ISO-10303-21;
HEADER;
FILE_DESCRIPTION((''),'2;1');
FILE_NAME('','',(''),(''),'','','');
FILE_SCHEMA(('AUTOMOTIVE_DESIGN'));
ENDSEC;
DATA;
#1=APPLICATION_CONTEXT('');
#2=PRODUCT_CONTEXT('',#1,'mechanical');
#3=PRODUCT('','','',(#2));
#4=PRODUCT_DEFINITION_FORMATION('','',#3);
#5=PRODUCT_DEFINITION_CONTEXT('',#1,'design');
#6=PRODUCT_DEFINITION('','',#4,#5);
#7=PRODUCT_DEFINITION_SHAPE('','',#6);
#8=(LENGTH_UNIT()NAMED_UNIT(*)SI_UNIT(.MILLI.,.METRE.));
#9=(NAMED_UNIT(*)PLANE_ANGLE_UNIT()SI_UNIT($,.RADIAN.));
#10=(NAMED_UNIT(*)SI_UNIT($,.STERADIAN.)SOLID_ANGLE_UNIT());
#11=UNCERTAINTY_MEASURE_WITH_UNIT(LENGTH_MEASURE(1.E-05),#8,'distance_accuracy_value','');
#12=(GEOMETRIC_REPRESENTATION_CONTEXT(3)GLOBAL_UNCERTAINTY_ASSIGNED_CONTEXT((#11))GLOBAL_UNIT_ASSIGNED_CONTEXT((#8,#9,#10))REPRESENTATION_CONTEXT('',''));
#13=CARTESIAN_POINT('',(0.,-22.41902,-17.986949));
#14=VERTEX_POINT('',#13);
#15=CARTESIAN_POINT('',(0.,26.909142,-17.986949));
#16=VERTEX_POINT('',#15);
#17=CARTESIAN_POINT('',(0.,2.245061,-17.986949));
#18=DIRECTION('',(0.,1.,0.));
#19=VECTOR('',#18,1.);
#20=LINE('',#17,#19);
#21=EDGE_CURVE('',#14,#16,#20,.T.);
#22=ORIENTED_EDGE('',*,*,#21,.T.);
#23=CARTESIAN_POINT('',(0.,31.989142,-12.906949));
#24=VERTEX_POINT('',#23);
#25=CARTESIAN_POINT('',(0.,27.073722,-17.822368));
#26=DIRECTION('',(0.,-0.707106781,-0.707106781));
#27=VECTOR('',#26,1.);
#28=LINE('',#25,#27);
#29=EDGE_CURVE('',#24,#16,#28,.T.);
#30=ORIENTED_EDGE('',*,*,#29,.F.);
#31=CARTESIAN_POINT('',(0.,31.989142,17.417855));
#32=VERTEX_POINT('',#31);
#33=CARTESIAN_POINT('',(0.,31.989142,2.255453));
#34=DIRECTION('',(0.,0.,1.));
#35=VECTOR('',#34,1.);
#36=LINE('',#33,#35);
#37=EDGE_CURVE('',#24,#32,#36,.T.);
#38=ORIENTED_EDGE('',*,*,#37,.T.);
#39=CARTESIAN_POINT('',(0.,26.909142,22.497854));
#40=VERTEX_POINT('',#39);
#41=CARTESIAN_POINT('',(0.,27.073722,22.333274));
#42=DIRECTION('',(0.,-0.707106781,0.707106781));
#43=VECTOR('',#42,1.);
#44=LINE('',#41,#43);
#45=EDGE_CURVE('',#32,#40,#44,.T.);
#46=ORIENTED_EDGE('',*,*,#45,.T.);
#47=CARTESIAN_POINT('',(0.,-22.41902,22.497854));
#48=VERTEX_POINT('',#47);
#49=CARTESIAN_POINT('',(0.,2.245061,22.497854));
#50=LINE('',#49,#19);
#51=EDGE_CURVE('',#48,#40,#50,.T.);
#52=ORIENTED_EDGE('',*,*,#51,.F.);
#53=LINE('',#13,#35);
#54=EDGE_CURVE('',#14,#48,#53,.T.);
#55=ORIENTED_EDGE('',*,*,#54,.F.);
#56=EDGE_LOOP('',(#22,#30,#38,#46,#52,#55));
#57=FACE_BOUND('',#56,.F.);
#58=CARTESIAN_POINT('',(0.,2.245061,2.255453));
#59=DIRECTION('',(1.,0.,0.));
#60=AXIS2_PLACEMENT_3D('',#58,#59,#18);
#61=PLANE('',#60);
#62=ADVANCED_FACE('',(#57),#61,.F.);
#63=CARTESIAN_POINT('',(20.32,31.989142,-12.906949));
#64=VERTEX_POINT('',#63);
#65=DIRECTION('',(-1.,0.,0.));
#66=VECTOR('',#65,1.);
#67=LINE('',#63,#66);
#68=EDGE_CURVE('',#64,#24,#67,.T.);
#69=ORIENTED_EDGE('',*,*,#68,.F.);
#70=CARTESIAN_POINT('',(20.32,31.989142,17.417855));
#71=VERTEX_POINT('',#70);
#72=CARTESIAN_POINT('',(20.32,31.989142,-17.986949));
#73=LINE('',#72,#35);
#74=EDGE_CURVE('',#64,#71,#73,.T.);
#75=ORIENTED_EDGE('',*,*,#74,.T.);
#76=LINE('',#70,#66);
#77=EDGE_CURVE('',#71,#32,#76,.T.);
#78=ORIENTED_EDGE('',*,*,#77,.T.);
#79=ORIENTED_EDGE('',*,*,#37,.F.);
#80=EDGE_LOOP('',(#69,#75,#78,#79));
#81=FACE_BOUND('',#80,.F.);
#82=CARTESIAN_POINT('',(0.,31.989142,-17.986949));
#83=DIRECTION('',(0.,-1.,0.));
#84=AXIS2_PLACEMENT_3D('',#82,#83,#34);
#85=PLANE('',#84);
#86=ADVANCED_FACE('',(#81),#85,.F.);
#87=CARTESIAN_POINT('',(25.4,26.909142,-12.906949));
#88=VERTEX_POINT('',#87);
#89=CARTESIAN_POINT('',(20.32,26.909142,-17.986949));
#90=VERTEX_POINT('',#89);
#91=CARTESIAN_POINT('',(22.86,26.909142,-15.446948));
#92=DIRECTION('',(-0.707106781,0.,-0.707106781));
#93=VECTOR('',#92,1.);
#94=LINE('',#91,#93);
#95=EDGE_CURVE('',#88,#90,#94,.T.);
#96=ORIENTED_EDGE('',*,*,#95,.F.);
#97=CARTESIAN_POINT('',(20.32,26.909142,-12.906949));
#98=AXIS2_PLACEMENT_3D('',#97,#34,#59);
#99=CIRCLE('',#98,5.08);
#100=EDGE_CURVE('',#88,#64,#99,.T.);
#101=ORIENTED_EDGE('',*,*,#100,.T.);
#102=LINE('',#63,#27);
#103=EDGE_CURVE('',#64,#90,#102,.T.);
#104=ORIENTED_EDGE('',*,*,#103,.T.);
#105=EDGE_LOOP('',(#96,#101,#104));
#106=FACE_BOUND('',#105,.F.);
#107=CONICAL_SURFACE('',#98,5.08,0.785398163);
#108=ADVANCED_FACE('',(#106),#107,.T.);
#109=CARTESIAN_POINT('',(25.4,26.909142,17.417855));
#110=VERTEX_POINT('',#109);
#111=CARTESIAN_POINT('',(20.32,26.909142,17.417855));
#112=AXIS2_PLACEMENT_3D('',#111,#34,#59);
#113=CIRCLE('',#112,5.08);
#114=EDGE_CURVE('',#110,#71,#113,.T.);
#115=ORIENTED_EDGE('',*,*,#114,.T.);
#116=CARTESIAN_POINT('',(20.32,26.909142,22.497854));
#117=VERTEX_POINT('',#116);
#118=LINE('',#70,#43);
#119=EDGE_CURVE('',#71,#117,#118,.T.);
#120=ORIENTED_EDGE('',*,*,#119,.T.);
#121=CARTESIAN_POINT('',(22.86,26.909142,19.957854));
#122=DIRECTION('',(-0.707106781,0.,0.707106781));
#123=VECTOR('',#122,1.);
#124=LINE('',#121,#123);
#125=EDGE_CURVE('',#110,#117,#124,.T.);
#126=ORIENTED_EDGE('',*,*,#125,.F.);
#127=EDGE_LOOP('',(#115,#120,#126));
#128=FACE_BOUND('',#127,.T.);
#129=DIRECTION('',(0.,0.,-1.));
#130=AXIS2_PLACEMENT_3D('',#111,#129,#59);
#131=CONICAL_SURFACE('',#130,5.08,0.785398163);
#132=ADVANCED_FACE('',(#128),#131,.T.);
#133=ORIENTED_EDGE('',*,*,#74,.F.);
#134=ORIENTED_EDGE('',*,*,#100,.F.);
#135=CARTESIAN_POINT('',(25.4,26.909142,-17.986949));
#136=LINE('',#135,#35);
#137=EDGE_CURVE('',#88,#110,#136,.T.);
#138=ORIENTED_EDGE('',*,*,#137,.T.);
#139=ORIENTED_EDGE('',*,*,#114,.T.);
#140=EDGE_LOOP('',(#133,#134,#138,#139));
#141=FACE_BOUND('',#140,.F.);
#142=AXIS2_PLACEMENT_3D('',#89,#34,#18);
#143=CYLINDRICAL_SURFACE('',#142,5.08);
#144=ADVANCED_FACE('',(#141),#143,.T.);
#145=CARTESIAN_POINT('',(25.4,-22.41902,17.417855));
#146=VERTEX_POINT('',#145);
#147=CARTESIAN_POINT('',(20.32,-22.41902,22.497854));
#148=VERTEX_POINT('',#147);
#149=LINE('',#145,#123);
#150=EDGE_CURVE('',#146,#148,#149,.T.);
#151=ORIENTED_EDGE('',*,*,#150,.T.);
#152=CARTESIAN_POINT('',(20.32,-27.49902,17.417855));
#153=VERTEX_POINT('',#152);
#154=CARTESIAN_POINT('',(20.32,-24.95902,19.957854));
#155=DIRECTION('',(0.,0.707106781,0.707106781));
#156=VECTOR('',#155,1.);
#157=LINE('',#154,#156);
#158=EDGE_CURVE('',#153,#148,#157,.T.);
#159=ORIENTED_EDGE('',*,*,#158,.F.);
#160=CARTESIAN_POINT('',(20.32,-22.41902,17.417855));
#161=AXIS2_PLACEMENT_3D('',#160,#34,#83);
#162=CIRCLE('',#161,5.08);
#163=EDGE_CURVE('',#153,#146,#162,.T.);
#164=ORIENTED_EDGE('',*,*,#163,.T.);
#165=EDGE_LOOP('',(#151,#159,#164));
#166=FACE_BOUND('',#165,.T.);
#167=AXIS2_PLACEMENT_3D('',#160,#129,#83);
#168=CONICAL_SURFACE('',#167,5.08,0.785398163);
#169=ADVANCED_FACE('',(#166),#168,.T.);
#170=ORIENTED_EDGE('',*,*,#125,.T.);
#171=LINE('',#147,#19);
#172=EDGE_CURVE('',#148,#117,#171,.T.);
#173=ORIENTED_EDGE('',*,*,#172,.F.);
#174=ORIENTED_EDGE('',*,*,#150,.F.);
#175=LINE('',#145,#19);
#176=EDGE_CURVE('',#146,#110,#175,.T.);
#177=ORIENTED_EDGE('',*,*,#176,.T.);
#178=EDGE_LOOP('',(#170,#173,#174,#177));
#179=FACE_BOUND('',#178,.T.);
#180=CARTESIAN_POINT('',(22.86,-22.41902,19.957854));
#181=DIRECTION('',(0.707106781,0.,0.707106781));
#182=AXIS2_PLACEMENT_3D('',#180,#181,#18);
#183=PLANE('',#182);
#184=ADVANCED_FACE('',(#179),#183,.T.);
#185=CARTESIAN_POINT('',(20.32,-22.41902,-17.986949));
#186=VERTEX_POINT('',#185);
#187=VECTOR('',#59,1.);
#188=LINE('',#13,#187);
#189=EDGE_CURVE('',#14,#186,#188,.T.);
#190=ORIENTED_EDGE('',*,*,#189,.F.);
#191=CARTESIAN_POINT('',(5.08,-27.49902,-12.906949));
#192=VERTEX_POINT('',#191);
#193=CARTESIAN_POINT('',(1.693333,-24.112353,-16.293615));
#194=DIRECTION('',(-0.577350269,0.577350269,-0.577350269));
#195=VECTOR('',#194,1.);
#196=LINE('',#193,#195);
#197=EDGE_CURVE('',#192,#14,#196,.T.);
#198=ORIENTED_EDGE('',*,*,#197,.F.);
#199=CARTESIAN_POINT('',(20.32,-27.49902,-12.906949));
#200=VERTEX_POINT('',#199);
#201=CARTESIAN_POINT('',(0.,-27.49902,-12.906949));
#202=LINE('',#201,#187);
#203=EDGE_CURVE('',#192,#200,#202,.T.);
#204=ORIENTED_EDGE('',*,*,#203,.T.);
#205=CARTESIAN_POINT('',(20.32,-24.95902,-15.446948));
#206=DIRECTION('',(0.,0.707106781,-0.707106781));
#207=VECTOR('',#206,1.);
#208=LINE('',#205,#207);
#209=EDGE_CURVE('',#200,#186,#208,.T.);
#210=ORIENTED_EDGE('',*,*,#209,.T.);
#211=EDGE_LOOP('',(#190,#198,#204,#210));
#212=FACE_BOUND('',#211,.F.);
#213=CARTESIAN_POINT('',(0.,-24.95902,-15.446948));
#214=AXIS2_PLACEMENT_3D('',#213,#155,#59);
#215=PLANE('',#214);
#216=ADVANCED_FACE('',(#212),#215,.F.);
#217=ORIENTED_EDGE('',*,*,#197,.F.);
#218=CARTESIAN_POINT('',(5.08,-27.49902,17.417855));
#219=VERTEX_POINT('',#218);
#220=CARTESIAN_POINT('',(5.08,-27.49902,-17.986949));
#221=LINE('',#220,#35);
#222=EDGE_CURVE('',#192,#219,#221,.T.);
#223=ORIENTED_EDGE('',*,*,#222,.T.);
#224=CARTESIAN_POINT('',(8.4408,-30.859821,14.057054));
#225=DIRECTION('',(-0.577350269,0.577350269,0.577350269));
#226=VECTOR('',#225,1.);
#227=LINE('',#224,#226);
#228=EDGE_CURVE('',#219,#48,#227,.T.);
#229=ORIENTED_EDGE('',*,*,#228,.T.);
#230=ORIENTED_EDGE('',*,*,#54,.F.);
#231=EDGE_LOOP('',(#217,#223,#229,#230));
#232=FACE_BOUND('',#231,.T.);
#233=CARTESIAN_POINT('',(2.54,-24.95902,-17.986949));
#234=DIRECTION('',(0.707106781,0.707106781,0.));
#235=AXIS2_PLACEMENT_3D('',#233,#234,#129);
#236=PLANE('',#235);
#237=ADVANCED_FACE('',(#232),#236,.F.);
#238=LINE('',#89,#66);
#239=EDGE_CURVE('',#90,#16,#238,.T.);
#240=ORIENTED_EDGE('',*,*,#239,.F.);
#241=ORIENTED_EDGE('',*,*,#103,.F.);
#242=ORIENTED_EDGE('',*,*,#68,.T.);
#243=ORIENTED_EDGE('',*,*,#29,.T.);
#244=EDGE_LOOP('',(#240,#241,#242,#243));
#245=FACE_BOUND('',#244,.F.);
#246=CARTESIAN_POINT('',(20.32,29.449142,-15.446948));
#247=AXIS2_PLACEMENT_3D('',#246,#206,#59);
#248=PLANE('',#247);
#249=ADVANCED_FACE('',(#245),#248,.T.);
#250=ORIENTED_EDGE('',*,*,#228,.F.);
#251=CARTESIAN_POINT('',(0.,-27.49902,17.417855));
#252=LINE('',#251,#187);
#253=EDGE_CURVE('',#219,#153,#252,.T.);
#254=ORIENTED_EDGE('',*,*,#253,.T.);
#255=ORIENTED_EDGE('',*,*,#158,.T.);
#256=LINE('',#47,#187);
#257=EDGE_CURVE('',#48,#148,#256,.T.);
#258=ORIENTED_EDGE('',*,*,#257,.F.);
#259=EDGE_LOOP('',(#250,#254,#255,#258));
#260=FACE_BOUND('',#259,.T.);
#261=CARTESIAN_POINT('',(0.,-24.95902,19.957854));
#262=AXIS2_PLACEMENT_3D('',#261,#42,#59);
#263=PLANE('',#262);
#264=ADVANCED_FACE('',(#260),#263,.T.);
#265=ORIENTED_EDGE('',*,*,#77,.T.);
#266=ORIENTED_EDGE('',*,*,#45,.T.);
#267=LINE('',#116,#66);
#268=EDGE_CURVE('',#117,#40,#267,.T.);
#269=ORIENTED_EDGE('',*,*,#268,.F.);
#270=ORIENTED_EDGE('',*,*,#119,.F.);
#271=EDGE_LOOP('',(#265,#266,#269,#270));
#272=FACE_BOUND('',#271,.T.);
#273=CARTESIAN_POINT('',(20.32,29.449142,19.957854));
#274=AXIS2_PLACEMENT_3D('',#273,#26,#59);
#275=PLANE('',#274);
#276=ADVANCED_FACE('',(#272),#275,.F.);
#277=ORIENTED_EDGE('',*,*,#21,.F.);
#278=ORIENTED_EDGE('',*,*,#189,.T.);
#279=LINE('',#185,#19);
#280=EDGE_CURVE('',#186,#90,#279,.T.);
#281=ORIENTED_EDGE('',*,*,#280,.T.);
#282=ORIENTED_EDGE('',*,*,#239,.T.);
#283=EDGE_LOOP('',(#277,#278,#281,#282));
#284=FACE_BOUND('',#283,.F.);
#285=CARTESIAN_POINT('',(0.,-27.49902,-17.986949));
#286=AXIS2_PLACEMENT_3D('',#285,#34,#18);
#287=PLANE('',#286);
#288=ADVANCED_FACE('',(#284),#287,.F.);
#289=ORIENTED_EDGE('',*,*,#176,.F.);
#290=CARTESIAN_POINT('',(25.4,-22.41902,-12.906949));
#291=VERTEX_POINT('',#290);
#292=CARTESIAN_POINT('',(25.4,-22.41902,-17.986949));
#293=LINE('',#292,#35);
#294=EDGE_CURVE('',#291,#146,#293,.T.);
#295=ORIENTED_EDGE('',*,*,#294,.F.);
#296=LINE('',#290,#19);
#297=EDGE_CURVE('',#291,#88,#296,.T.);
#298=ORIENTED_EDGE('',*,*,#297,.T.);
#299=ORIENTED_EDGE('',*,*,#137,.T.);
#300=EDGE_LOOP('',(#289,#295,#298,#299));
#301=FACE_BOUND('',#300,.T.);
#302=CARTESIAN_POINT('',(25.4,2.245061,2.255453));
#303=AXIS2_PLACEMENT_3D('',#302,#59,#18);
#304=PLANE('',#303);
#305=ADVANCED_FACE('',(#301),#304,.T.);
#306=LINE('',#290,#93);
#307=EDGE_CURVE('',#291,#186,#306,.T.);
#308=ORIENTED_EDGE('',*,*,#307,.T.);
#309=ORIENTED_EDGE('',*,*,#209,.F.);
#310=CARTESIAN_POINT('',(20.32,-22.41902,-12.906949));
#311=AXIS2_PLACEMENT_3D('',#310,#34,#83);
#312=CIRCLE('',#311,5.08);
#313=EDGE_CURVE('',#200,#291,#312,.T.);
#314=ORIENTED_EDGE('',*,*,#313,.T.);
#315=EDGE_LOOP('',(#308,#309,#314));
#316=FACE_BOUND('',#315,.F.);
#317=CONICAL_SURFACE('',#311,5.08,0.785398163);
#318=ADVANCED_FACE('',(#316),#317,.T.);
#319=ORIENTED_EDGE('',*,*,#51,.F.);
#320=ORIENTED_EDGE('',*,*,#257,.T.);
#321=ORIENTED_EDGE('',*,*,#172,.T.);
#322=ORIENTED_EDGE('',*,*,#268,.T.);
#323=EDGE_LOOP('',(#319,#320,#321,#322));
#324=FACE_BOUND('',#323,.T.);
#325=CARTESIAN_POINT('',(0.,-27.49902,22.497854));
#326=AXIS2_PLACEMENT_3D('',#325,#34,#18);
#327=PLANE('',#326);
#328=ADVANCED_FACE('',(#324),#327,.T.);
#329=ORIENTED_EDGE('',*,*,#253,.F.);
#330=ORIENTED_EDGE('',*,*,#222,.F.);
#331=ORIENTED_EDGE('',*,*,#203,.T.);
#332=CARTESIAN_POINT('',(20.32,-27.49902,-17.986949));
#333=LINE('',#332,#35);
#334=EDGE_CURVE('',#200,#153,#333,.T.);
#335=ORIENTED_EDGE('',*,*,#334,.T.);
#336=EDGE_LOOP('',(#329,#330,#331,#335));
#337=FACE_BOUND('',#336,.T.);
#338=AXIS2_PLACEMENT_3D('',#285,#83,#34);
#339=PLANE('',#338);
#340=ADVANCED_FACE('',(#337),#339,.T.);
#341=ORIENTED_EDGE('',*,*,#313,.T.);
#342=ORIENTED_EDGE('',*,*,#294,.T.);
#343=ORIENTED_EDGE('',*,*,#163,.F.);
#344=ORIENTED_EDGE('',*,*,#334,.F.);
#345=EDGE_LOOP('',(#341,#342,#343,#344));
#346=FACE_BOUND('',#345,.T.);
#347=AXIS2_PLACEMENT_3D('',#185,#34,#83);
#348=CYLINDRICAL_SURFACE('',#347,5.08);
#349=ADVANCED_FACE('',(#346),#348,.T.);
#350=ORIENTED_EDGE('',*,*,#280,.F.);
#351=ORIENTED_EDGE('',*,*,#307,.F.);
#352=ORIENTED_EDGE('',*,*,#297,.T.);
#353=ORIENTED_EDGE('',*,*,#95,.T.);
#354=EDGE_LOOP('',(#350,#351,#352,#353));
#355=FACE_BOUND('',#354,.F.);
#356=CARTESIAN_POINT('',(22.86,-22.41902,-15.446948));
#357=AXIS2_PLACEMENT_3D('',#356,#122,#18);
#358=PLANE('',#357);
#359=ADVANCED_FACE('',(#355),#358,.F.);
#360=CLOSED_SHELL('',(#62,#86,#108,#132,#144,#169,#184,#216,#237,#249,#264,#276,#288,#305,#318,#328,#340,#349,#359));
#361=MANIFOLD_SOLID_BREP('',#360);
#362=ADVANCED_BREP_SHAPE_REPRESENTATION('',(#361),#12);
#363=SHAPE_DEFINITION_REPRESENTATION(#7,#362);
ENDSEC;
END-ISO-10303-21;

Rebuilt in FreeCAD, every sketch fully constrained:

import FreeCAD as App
import Part
import Sketcher
Q = App.Units.Quantity


def edges_at(feature, points):
    """Names of the edges that pass closest to the given points."""
    edges = feature.Shape.Edges
    near = lambda p: min(range(len(edges)), key=lambda i: edges[i].distToShape(Part.Vertex(*p))[0])
    return sorted({f"Edge{near(p) + 1}" for p in points})


def add_polygon(sketch, points):
    """Adds a closed chain of lines whose ends are joined by coincident constraints."""
    first, n = sketch.GeometryCount, len(points)
    for a, b in zip(points, points[1:] + points[:1]):
        sketch.addGeometry(Part.LineSegment(App.Vector(*a, 0), App.Vector(*b, 0)), False)
    for i in range(n):
        sketch.addConstraint(Sketcher.Constraint("Coincident", first + i, 2, first + (i + 1) % n, 1))

doc = App.newDocument("Part")
body = doc.addObject("PartDesign::Body", "Body")

sketch1 = body.newObject("Sketcher::SketchObject", "Sketch")
sketch1.AttachmentSupport = (doc.getObject("YZ_Plane"), [""])
sketch1.MapMode = "FlatFace"
add_polygon(sketch1, [(-27, 22), (-27, -18), (32, -18), (32, 22)])
sketch1.addConstraint([
    Sketcher.Constraint("Vertical", 0),
    Sketcher.Constraint("Horizontal", 1),
    Sketcher.Constraint("Vertical", 2),
    Sketcher.Constraint("Horizontal", 3),
    Sketcher.Constraint("DistanceX", 1, 1, 1, 2, Q("59.488162 mm")),
    Sketcher.Constraint("DistanceY", 0, 2, 0, 1, Q("40.484803 mm")),
    Sketcher.Constraint("DistanceX", 0, 2, -1, 1, Q("27.49902 mm")),
    Sketcher.Constraint("DistanceY", 0, 2, -1, 1, Q("17.986949 mm")),
])
pad1 = body.newObject("PartDesign::Pad", "Pad")
pad1.Profile = sketch1
pad1.Length = Q("1 in")
doc.recompute()

fillet = body.newObject("PartDesign::Fillet", "Fillet")
fillet.Base = (pad1, edges_at(pad1, [(25.4, -27.499, 2.255), (25.4, 31.989, 2.255)]))
fillet.Radius = Q("0.2 in")
doc.recompute()

chamfer = body.newObject("PartDesign::Chamfer", "Chamfer")
chamfer.Base = (fillet, edges_at(fillet, [
    (10.16, -27.499, 22.498),
    (20.32, -27.499, 2.255),
    (0, -27.499, 2.255),
    (10.16, -27.499, -17.987),
]))
chamfer.Size = Q("0.2 in")

doc.recompute()
